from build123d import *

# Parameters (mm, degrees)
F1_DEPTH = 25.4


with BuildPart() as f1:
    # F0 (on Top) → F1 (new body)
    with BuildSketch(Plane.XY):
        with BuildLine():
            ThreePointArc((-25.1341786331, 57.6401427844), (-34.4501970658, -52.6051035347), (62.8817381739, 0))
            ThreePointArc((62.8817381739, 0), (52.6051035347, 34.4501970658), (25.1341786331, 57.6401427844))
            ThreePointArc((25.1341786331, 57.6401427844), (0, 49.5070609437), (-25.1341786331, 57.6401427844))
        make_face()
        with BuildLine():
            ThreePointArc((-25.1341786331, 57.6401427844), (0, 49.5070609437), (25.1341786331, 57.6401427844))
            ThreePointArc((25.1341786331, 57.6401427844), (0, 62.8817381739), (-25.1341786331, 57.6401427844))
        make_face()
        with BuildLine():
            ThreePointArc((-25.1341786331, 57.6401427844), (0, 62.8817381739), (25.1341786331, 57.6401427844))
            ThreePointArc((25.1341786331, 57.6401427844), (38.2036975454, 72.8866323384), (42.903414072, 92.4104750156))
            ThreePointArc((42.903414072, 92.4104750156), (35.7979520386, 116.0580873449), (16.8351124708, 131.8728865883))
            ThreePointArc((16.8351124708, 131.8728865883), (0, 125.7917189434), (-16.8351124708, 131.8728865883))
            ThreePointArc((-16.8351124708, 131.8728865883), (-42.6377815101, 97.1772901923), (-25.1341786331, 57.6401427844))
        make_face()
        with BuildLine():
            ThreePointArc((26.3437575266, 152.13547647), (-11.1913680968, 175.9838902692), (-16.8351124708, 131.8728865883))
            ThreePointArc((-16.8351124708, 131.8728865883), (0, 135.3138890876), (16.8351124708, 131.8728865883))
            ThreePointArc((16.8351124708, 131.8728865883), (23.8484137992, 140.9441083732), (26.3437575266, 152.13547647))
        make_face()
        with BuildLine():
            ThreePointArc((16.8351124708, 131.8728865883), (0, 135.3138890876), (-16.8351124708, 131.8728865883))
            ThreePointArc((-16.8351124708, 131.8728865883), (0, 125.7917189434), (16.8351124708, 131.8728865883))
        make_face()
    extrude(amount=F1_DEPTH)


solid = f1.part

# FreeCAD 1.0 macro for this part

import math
import FreeCAD as App
import Part
import Sketcher
from FreeCAD import Vector
Q = App.Units.Quantity

doc = App.newDocument("Part")
body = doc.addObject("PartDesign::Body", "Body")

# Sketch on XY plane
sketch1 = doc.addObject("Sketcher::SketchObject", "Sketch")
body.addObject(sketch1)
sketch1.AttachmentSupport = (doc.XY_Plane, [""])
sketch1.MapMode = "FlatFace"
sketch1.addGeometry([
    Part.ArcOfCircle(Part.Circle(Vector(0, 0, 0), Vector(0, 0, 1), 62.881738), math.radians(113.559771), math.radians(426.440229)),  # 0
    Part.ArcOfCircle(Part.Circle(Vector(0, 92.410475, 0), Vector(0, 0, 1), 42.903414), math.radians(-54.138235), math.radians(0)),  # 1
    Part.ArcOfCircle(Part.Circle(Vector(0, 92.410475, 0), Vector(0, 0, 1), 42.903414), math.radians(0), math.radians(66.896355)),  # 2
    Part.ArcOfCircle(Part.Circle(Vector(0, 152.135476, 0), Vector(0, 0, 1), 26.343758), math.radians(-50.278604), math.radians(0)),  # 3
    Part.ArcOfCircle(Part.Circle(Vector(0, 152.135476, 0), Vector(0, 0, 1), 26.343758), math.radians(0), math.radians(230.278604)),  # 4
    Part.ArcOfCircle(Part.Circle(Vector(0, 92.410475, 0), Vector(0, 0, 1), 42.903414), math.radians(113.103645), math.radians(234.138235)),  # 5
], False)
sketch1.addConstraint([
    Sketcher.Constraint("Coincident", 0, 2, 1, 1),
    Sketcher.Constraint("Tangent", 1, 2, 2, 1),
    Sketcher.Constraint("Coincident", 2, 2, 3, 1),
    Sketcher.Constraint("Tangent", 3, 2, 4, 1),
    Sketcher.Constraint("Coincident", 4, 2, 5, 1),
    Sketcher.Constraint("Coincident", 5, 2, 0, 1),
    Sketcher.Constraint("Coincident", 0, 3, -1, 1),
    Sketcher.Constraint("Coincident", 5, 3, 1, 3),
    Sketcher.Constraint("Equal", 1, 2),
    Sketcher.Constraint("Equal", 3, 4),
    Sketcher.Constraint("Equal", 2, 5),
    Sketcher.Constraint("Symmetric", 2, 2, 4, 2, -2),
    Sketcher.Constraint("Horizontal", 5, 3, 1, 2),
    Sketcher.Constraint("Horizontal", 4, 3, 3, 2),
    Sketcher.Constraint("Radius", 0, 62.881738),
    Sketcher.Constraint("Radius", 1, 42.903414),
    Sketcher.Constraint("Radius", 3, 26.343758),
    Sketcher.Constraint("DistanceY", 1, 3, 3, 3, 59.725001),
    Sketcher.Constraint("DistanceX", -1, 1, 0, 2, 25.134179),
])
pad1 = doc.addObject("PartDesign::Pad", "Pad")
body.addObject(pad1)
pad1.Profile = sketch1
pad1.Length = Q("1 in")

doc.recompute()
